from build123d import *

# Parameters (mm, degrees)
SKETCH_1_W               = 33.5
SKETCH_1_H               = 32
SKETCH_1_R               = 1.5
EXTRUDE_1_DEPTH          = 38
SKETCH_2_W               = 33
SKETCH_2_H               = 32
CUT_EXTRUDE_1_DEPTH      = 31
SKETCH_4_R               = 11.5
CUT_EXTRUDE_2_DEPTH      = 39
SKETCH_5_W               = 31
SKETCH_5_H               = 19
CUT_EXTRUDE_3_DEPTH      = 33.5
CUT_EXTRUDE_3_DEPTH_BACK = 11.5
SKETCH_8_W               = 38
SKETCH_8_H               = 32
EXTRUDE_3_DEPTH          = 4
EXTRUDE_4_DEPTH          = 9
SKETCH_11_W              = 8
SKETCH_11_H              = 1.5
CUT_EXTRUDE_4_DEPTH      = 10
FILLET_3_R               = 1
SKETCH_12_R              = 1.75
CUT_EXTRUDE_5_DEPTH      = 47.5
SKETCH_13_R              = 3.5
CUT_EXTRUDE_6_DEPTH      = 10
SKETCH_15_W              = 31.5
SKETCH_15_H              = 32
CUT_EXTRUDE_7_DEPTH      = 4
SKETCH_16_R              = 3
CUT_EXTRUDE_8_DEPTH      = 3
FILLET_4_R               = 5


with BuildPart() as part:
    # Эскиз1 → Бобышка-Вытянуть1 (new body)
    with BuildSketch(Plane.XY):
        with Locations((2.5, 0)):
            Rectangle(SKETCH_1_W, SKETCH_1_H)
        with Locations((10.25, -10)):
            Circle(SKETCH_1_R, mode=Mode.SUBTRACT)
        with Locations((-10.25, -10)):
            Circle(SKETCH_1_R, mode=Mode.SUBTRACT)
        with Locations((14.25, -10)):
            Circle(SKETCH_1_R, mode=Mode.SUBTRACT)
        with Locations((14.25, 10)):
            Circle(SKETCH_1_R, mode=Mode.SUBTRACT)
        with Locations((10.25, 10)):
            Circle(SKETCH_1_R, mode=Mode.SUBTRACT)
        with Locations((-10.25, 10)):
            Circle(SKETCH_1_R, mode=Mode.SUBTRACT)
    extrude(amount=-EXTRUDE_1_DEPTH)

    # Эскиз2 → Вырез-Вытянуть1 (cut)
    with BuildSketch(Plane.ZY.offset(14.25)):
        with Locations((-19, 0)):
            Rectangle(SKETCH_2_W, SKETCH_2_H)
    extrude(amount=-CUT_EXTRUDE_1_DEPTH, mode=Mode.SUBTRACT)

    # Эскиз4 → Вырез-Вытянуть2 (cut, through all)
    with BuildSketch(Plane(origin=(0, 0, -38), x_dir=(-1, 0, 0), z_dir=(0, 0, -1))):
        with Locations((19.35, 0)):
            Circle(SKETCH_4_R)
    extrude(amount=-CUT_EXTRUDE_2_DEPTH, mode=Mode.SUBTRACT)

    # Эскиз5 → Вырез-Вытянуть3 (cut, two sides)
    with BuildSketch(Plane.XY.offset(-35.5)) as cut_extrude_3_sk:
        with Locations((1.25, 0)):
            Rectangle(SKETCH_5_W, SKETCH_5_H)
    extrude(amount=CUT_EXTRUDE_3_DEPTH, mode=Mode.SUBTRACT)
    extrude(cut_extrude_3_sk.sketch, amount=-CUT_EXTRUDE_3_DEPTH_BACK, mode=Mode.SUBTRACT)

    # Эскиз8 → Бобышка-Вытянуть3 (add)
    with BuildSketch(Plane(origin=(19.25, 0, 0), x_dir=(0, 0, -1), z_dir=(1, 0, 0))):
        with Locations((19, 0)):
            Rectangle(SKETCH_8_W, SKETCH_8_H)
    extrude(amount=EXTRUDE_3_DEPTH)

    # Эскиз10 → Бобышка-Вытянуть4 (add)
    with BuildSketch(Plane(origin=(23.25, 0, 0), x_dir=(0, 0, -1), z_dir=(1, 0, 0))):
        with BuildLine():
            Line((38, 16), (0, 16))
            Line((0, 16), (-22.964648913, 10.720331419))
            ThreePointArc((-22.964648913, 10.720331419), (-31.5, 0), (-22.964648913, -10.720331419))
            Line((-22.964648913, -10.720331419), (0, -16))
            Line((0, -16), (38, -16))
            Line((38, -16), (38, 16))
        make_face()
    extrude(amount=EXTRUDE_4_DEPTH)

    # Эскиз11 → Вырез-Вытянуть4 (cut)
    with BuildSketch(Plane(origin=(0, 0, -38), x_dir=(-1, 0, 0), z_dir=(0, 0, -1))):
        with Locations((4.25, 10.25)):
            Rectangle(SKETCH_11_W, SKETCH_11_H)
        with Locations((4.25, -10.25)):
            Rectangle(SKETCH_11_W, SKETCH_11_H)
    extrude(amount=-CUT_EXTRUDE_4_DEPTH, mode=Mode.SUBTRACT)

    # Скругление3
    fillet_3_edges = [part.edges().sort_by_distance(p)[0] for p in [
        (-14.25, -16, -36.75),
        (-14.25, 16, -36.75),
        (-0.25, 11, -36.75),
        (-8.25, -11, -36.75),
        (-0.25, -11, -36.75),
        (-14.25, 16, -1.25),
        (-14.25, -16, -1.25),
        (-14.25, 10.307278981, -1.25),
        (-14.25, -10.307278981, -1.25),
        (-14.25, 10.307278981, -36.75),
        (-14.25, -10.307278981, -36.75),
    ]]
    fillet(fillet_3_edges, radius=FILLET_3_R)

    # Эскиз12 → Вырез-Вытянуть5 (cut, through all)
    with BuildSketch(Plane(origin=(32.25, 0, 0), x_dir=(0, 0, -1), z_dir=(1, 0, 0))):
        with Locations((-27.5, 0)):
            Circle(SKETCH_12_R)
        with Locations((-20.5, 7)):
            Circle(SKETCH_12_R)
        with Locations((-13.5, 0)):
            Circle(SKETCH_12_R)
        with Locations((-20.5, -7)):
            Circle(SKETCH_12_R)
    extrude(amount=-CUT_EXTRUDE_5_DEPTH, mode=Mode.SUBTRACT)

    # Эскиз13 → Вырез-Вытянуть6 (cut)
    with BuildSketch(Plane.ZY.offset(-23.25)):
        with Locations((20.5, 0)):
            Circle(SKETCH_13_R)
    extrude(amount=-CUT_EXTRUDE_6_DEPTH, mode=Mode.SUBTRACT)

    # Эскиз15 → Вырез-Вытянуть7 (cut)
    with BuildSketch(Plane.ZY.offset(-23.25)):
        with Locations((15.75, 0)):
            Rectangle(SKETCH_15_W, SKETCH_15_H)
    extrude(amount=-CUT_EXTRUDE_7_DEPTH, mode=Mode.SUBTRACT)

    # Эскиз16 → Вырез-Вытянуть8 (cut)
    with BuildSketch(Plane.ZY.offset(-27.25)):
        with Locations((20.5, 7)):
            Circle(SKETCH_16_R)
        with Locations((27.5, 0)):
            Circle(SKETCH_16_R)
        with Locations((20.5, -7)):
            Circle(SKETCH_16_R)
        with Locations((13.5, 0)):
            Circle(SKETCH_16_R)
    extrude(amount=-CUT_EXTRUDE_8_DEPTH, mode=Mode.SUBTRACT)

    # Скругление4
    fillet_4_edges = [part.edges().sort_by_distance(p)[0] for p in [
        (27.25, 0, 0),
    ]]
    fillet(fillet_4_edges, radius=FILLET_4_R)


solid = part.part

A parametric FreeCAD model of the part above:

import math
import FreeCAD as App
import Part
import Sketcher
from FreeCAD import Vector
Q = App.Units.Quantity


def edges_at(feature, points):
    """Names of the edges that pass closest to the given points."""
    edges = feature.Shape.Edges
    near = lambda p: min(range(len(edges)), key=lambda i: edges[i].distToShape(Part.Vertex(*p))[0])
    return sorted({f"Edge{near(p) + 1}" for p in points})

doc = App.newDocument("Part")
body = doc.addObject("PartDesign::Body", "Body")

# Sketch on XY plane
sketch1 = doc.addObject("Sketcher::SketchObject", "Sketch")
body.addObject(sketch1)
sketch1.AttachmentSupport = (doc.XY_Plane, [""])
sketch1.MapMode = "FlatFace"
sketch1.addGeometry([
    Part.LineSegment(Vector(-14.2, 16, 0), Vector(-14.2, -16, 0)),  # 0
    Part.LineSegment(Vector(-14.2, -16, 0), Vector(19.2, -16, 0)),  # 1
    Part.LineSegment(Vector(19.2, -16, 0), Vector(19.2, 16, 0)),  # 2
    Part.LineSegment(Vector(19.2, 16, 0), Vector(-14.2, 16, 0)),  # 3
    Part.Circle(Vector(-10.2, -10, 0), Vector(0, 0, 1), 1.5),  # 4
    Part.Circle(Vector(10.2, -10, 0), Vector(0, 0, 1), 1.5),  # 5
    Part.Circle(Vector(14.2, -10, 0), Vector(0, 0, 1), 1.5),  # 6
    Part.Circle(Vector(-10.2, 10, 0), Vector(0, 0, 1), 1.5),  # 7
    Part.Circle(Vector(10.2, 10, 0), Vector(0, 0, 1), 1.5),  # 8
    Part.Circle(Vector(14.2, 10, 0), Vector(0, 0, 1), 1.5),  # 9
], False)
sketch1.addConstraint([
    Sketcher.Constraint("Coincident", 0, 2, 1, 1),
    Sketcher.Constraint("Coincident", 1, 2, 2, 1),
    Sketcher.Constraint("Coincident", 2, 2, 3, 1),
    Sketcher.Constraint("Coincident", 3, 2, 0, 1),
    Sketcher.Constraint("Vertical", 0),
    Sketcher.Constraint("Horizontal", 1),
    Sketcher.Constraint("Vertical", 2),
    Sketcher.Constraint("Horizontal", 3),
    Sketcher.Constraint("Equal", 4, 5),
    Sketcher.Constraint("Equal", 5, 6),
    Sketcher.Constraint("Equal", 6, 7),
    Sketcher.Constraint("Equal", 7, 8),
    Sketcher.Constraint("Equal", 8, 9),
    Sketcher.Constraint("Symmetric", 5, 3, 7, 3, -1, 1),
    Sketcher.Constraint("Symmetric", 4, 3, 8, 3, -1, 1),
    Sketcher.Constraint("Symmetric", 4, 3, 5, 3, -2),
    Sketcher.Constraint("Symmetric", 6, 3, 9, 3, -1),
    Sketcher.Constraint("Horizontal", 5, 3, 6, 3),
    Sketcher.Constraint("Diameter", 4, Q("3 mm")),
    Sketcher.Constraint("DistanceY", 0, 2, 0, 1, Q("32 mm")),
    Sketcher.Constraint("DistanceX", 1, 1, 1, 2, Q("33.5 mm")),
    Sketcher.Constraint("DistanceY", 4, 3, -1, 1, Q("10 mm")),
    Sketcher.Constraint("DistanceY", 0, 2, -1, 1, Q("16 mm")),
    Sketcher.Constraint("DistanceX", 5, 3, 6, 3, Q("4 mm")),
    Sketcher.Constraint("DistanceX", 0, 2, 4, 3, Q("4 mm")),
    Sketcher.Constraint("DistanceX", 6, 3, 1, 2, Q("5 mm")),
])
pad1 = doc.addObject("PartDesign::Pad", "Pad")
body.addObject(pad1)
pad1.Profile = sketch1
pad1.Length = 38
pad1.Reversed = True

# Sketch on YZ plane
sketch2 = doc.addObject("Sketcher::SketchObject", "Sketch001")
body.addObject(sketch2)
sketch2.AttachmentSupport = (doc.YZ_Plane, [""])
sketch2.MapMode = "FlatFace"
sketch2.AttachmentOffset = App.Placement(Vector(0, 0, -14.25), App.Rotation())
sketch2.addGeometry([
    Part.LineSegment(Vector(16, -36, 0), Vector(-16, -36, 0)),
    Part.LineSegment(Vector(-16, -36, 0), Vector(-16, -2, 0)),
    Part.LineSegment(Vector(-16, -2, 0), Vector(16, -2, 0)),
    Part.LineSegment(Vector(16, -2, 0), Vector(16, -36, 0)),
], False)
sketch2.addConstraint([
    Sketcher.Constraint("Coincident", 0, 2, 1, 1),
    Sketcher.Constraint("Coincident", 1, 2, 2, 1),
    Sketcher.Constraint("Coincident", 2, 2, 3, 1),
    Sketcher.Constraint("Coincident", 3, 2, 0, 1),
    Sketcher.Constraint("Horizontal", 0),
    Sketcher.Constraint("Vertical", 1),
    Sketcher.Constraint("Horizontal", 2),
    Sketcher.Constraint("Vertical", 3),
    Sketcher.Constraint("DistanceX", 0, 2, 0, 1, Q("32 mm")),
    Sketcher.Constraint("DistanceY", 1, 1, 1, 2, Q("33 mm")),
    Sketcher.Constraint("DistanceX", 0, 2, -1, 1, Q("16 mm")),
    Sketcher.Constraint("DistanceY", 0, 2, -1, 1, Q("35.5 mm")),
])
pocket1 = doc.addObject("PartDesign::Pocket", "Pocket")
body.addObject(pocket1)
pocket1.Profile = sketch2
pocket1.Length = 31
pocket1.Reversed = True

# Sketch on XY plane
sketch3 = doc.addObject("Sketcher::SketchObject", "Sketch002")
body.addObject(sketch3)
sketch3.AttachmentSupport = (doc.XY_Plane, [""])
sketch3.MapMode = "FlatFace"
sketch3.AttachmentOffset = App.Placement(Vector(0, 0, -38), App.Rotation())
sketch3.addGeometry(Part.Circle(Vector(-19, 0, 0), Vector(0, 0, 1), 12), False)
sketch3.addConstraint([
    Sketcher.Constraint("PointOnObject", 0, 3, -1),
    Sketcher.Constraint("Diameter", 0, Q("23 mm")),
    Sketcher.Constraint("DistanceX", 0, 3, -1, 1, Q("19.35 mm")),
])
pocket2 = doc.addObject("PartDesign::Pocket", "Pocket001")
body.addObject(pocket2)
pocket2.Profile = sketch3
pocket2.Type = "ThroughAll"
pocket2.Reversed = True

# Sketch on XY plane
sketch4 = doc.addObject("Sketcher::SketchObject", "Sketch003")
body.addObject(sketch4)
sketch4.AttachmentSupport = (doc.XY_Plane, [""])
sketch4.MapMode = "FlatFace"
sketch4.AttachmentOffset = App.Placement(Vector(0, 0, -35.5), App.Rotation())
sketch4.addGeometry([
    Part.LineSegment(Vector(-14, 10, 0), Vector(-14, -10, 0)),
    Part.LineSegment(Vector(-14, -10, 0), Vector(17, -10, 0)),
    Part.LineSegment(Vector(17, -10, 0), Vector(17, 10, 0)),
    Part.LineSegment(Vector(17, 10, 0), Vector(-14, 10, 0)),
], False)
sketch4.addConstraint([
    Sketcher.Constraint("Coincident", 0, 2, 1, 1),
    Sketcher.Constraint("Coincident", 1, 2, 2, 1),
    Sketcher.Constraint("Coincident", 2, 2, 3, 1),
    Sketcher.Constraint("Coincident", 3, 2, 0, 1),
    Sketcher.Constraint("Vertical", 0),
    Sketcher.Constraint("Horizontal", 1),
    Sketcher.Constraint("Vertical", 2),
    Sketcher.Constraint("Horizontal", 3),
    Sketcher.Constraint("DistanceX", 1, 1, 1, 2, Q("31 mm")),
    Sketcher.Constraint("DistanceY", 0, 2, 0, 1, Q("19 mm")),
    Sketcher.Constraint("DistanceY", 0, 2, -1, 1, Q("9.5 mm")),
    Sketcher.Constraint("DistanceX", 0, 2, -1, 1, Q("14.25 mm")),
])
pocket3 = doc.addObject("PartDesign::Pocket", "Pocket002")
body.addObject(pocket3)
pocket3.Profile = sketch4
pocket3.Type = "TwoLengths"
pocket3.Length = 33.5
pocket3.Length2 = 11.5
pocket3.Reversed = True

# Sketch on YZ plane
sketch5 = doc.addObject("Sketcher::SketchObject", "Sketch004")
body.addObject(sketch5)
sketch5.AttachmentSupport = (doc.YZ_Plane, [""])
sketch5.MapMode = "FlatFace"
sketch5.AttachmentOffset = App.Placement(Vector(0, 0, 19.25), App.Rotation())
sketch5.addGeometry([
    Part.LineSegment(Vector(16, 0, 0), Vector(-16, 0, 0)),
    Part.LineSegment(Vector(-16, 0, 0), Vector(-16, -38, 0)),
    Part.LineSegment(Vector(-16, -38, 0), Vector(16, -38, 0)),
    Part.LineSegment(Vector(16, -38, 0), Vector(16, 0, 0)),
], False)
sketch5.addConstraint([
    Sketcher.Constraint("Coincident", 0, 2, 1, 1),
    Sketcher.Constraint("Coincident", 1, 2, 2, 1),
    Sketcher.Constraint("Coincident", 2, 2, 3, 1),
    Sketcher.Constraint("Coincident", 3, 2, 0, 1),
    Sketcher.Constraint("Horizontal", 0),
    Sketcher.Constraint("Vertical", 1),
    Sketcher.Constraint("Horizontal", 2),
    Sketcher.Constraint("Vertical", 3),
    Sketcher.Constraint("Symmetric", 0, 2, 3, 2, -1, 1),
    Sketcher.Constraint("DistanceX", 0, 2, 0, 1, Q("32 mm")),
    Sketcher.Constraint("DistanceY", 1, 2, 1, 1, Q("38 mm")),
])
pad2 = doc.addObject("PartDesign::Pad", "Pad001")
body.addObject(pad2)
pad2.Profile = sketch5
pad2.Length = 4

# Sketch on YZ plane
sketch6 = doc.addObject("Sketcher::SketchObject", "Sketch005")
body.addObject(sketch6)
sketch6.AttachmentSupport = (doc.YZ_Plane, [""])
sketch6.MapMode = "FlatFace"
sketch6.AttachmentOffset = App.Placement(Vector(0, 0, 23.25), App.Rotation())
sketch6.addGeometry([
    Part.LineSegment(Vector(16, -38, 0), Vector(16, 0, 0)),  # 0
    Part.LineSegment(Vector(16, 0, 0), Vector(11, 23, 0)),  # 1
    Part.ArcOfCircle(Part.Circle(Vector(0, 20, 0), Vector(0, 0, 1), 11), math.radians(13), math.radians(167)),  # 2
    Part.LineSegment(Vector(-11, 23, 0), Vector(-16, 0, 0)),  # 3
    Part.LineSegment(Vector(-16, 0, 0), Vector(-16, -38, 0)),  # 4
    Part.LineSegment(Vector(-16, -38, 0), Vector(16, -38, 0)),  # 5
], False)
sketch6.addConstraint([
    Sketcher.Constraint("Coincident", 0, 2, 1, 1),
    Sketcher.Constraint("Tangent", 1, 2, 2, 1),
    Sketcher.Constraint("Tangent", 2, 2, 3, 1),
    Sketcher.Constraint("Coincident", 3, 2, 4, 1),
    Sketcher.Constraint("Coincident", 4, 2, 5, 1),
    Sketcher.Constraint("Coincident", 5, 2, 0, 1),
    Sketcher.Constraint("Vertical", 0),
    Sketcher.Constraint("Vertical", 4),
    Sketcher.Constraint("Horizontal", 5),
    Sketcher.Constraint("Symmetric", 0, 2, 3, 2, -1, 1),
    Sketcher.Constraint("Symmetric", 1, 2, 2, 2, -2),
    Sketcher.Constraint("Radius", 2, Q("11 mm")),
    Sketcher.Constraint("DistanceX", 5, 1, 5, 2, Q("32 mm")),
    Sketcher.Constraint("DistanceY", 0, 1, 0, 2, Q("38 mm")),
    Sketcher.Constraint("DistanceY", -1, 1, 2, 3, Q("20.5 mm")),
])
pad3 = doc.addObject("PartDesign::Pad", "Pad002")
body.addObject(pad3)
pad3.Profile = sketch6
pad3.Length = 9

# Sketch on XY plane
sketch7 = doc.addObject("Sketcher::SketchObject", "Sketch006")
body.addObject(sketch7)
sketch7.AttachmentSupport = (doc.XY_Plane, [""])
sketch7.MapMode = "FlatFace"
sketch7.AttachmentOffset = App.Placement(Vector(0, 0, -38), App.Rotation())
sketch7.addGeometry([
    Part.LineSegment(Vector(-0.2, 11, 0), Vector(-0.2, 9.5, 0)),  # 0
    Part.LineSegment(Vector(-0.2, 9.5, 0), Vector(-8.2, 9.5, 0)),  # 1
    Part.LineSegment(Vector(-8.2, 9.5, 0), Vector(-8.2, 11, 0)),  # 2
    Part.LineSegment(Vector(-8.2, 11, 0), Vector(-0.2, 11, 0)),  # 3
    Part.LineSegment(Vector(-0.2, -9.5, 0), Vector(-0.2, -11, 0)),  # 4
    Part.LineSegment(Vector(-0.2, -11, 0), Vector(-8.2, -11, 0)),  # 5
    Part.LineSegment(Vector(-8.2, -11, 0), Vector(-8.2, -9.5, 0)),  # 6
    Part.LineSegment(Vector(-8.2, -9.5, 0), Vector(-0.2, -9.5, 0)),  # 7
], False)
sketch7.addConstraint([
    Sketcher.Constraint("Coincident", 0, 2, 1, 1),
    Sketcher.Constraint("Coincident", 1, 2, 2, 1),
    Sketcher.Constraint("Coincident", 2, 2, 3, 1),
    Sketcher.Constraint("Coincident", 3, 2, 0, 1),
    Sketcher.Constraint("Coincident", 4, 2, 5, 1),
    Sketcher.Constraint("Coincident", 5, 2, 6, 1),
    Sketcher.Constraint("Coincident", 6, 2, 7, 1),
    Sketcher.Constraint("Coincident", 7, 2, 4, 1),
    Sketcher.Constraint("Vertical", 0),
    Sketcher.Constraint("Horizontal", 1),
    Sketcher.Constraint("Vertical", 2),
    Sketcher.Constraint("Horizontal", 3),
    Sketcher.Constraint("Vertical", 4),
    Sketcher.Constraint("Horizontal", 5),
    Sketcher.Constraint("Vertical", 6),
    Sketcher.Constraint("Horizontal", 7),
    Sketcher.Constraint("Symmetric", 3, 2, 4, 2, -1),
    Sketcher.Constraint("Symmetric", 1, 2, 6, 2, -1),
    Sketcher.Constraint("DistanceX", 1, 2, 1, 1, Q("8 mm")),
    Sketcher.Constraint("DistanceY", 0, 2, 0, 1, Q("1.5 mm")),
    Sketcher.Constraint("DistanceY", -1, 1, 2, 2, Q("11 mm")),
    Sketcher.Constraint("DistanceX", 0, 2, -1, 1, Q("0.25 mm")),
])
pocket4 = doc.addObject("PartDesign::Pocket", "Pocket003")
body.addObject(pocket4)
pocket4.Profile = sketch7
pocket4.Length = 10
pocket4.Reversed = True
doc.recompute()

fillet = doc.addObject("PartDesign::Fillet", "Fillet")
body.addObject(fillet)
fillet.Base = (pocket4, edges_at(pocket4, [
    (-14.25, -16, -36.75),
    (-14.25, 16, -36.75),
    (-0.25, 11, -36.75),
    (-8.25, -11, -36.75),
    (-0.25, -11, -36.75),
    (-14.25, 16, -1.25),
    (-14.25, -16, -1.25),
    (-14.25, 10.307, -1.25),
    (-14.25, -10.307, -1.25),
    (-14.25, 10.307, -36.75),
    (-14.25, -10.307, -36.75),
]))
fillet.Radius = 1

# Sketch on YZ plane
sketch8 = doc.addObject("Sketcher::SketchObject", "Sketch007")
body.addObject(sketch8)
sketch8.AttachmentSupport = (doc.YZ_Plane, [""])
sketch8.MapMode = "FlatFace"
sketch8.AttachmentOffset = App.Placement(Vector(0, 0, 32.25), App.Rotation())
sketch8.addGeometry([
    Part.Circle(Vector(0, 27.5, 0), Vector(0, 0, 1), 1.8),
    Part.Circle(Vector(7, 20.5, 0), Vector(0, 0, 1), 1.8),
    Part.Circle(Vector(0, 13.5, 0), Vector(0, 0, 1), 1.8),
    Part.Circle(Vector(-7, 20.5, 0), Vector(0, 0, 1), 1.8),
], False)
sketch8.addConstraint([
    Sketcher.Constraint("Equal", 0, 1),
    Sketcher.Constraint("Equal", 1, 2),
    Sketcher.Constraint("Equal", 2, 3),
    Sketcher.Constraint("Symmetric", 1, 3, 3, 3, -2),
    Sketcher.Constraint("PointOnObject", 0, 3, -2),
    Sketcher.Constraint("PointOnObject", 2, 3, -2),
    Sketcher.Constraint("Diameter", 0, Q("3.5 mm")),
    Sketcher.Constraint("DistanceX", -1, 1, 1, 3, Q("7 mm")),
    Sketcher.Constraint("DistanceY", 1, 3, 0, 3, Q("7 mm")),
    Sketcher.Constraint("DistanceY", 2, 3, 1, 3, Q("7 mm")),
    Sketcher.Constraint("DistanceY", -1, 1, 0, 3, Q("27.5 mm")),
])
pocket5 = doc.addObject("PartDesign::Pocket", "Pocket004")
body.addObject(pocket5)
pocket5.Profile = sketch8
pocket5.Type = "ThroughAll"

# Sketch on YZ plane
sketch9 = doc.addObject("Sketcher::SketchObject", "Sketch008")
body.addObject(sketch9)
sketch9.AttachmentSupport = (doc.YZ_Plane, [""])
sketch9.MapMode = "FlatFace"
sketch9.AttachmentOffset = App.Placement(Vector(0, 0, 23.25), App.Rotation())
sketch9.addGeometry(Part.Circle(Vector(0, 20.5, 0), Vector(0, 0, 1), 3.5), False)
sketch9.addConstraint([
    Sketcher.Constraint("PointOnObject", 0, 3, -2),
    Sketcher.Constraint("Diameter", 0, Q("7 mm")),
    Sketcher.Constraint("DistanceY", -1, 1, 0, 3, Q("20.5 mm")),
])
pocket6 = doc.addObject("PartDesign::Pocket", "Pocket005")
body.addObject(pocket6)
pocket6.Profile = sketch9
pocket6.Length = 10
pocket6.Reversed = True

# Sketch on YZ plane
sketch10 = doc.addObject("Sketcher::SketchObject", "Sketch009")
body.addObject(sketch10)
sketch10.AttachmentSupport = (doc.YZ_Plane, [""])
sketch10.MapMode = "FlatFace"
sketch10.AttachmentOffset = App.Placement(Vector(0, 0, 23.25), App.Rotation())
sketch10.addGeometry([
    Part.LineSegment(Vector(16, 0, 0), Vector(-16, 0, 0)),
    Part.LineSegment(Vector(-16, 0, 0), Vector(-16, 32, 0)),
    Part.LineSegment(Vector(-16, 32, 0), Vector(16, 32, 0)),
    Part.LineSegment(Vector(16, 32, 0), Vector(16, 0, 0)),
], False)
sketch10.addConstraint([
    Sketcher.Constraint("Coincident", 0, 2, 1, 1),
    Sketcher.Constraint("Coincident", 1, 2, 2, 1),
    Sketcher.Constraint("Coincident", 2, 2, 3, 1),
    Sketcher.Constraint("Coincident", 3, 2, 0, 1),
    Sketcher.Constraint("Horizontal", 0),
    Sketcher.Constraint("Vertical", 1),
    Sketcher.Constraint("Horizontal", 2),
    Sketcher.Constraint("Vertical", 3),
    Sketcher.Constraint("Symmetric", 0, 2, 3, 2, -1, 1),
    Sketcher.Constraint("DistanceX", 0, 2, 0, 1, Q("32 mm")),
    Sketcher.Constraint("DistanceY", 1, 1, 1, 2, Q("31.5 mm")),
])
pocket7 = doc.addObject("PartDesign::Pocket", "Pocket006")
body.addObject(pocket7)
pocket7.Profile = sketch10
pocket7.Length = 4
pocket7.Reversed = True

# Sketch on YZ plane
sketch11 = doc.addObject("Sketcher::SketchObject", "Sketch010")
body.addObject(sketch11)
sketch11.AttachmentSupport = (doc.YZ_Plane, [""])
sketch11.MapMode = "FlatFace"
sketch11.AttachmentOffset = App.Placement(Vector(0, 0, 27.25), App.Rotation())
sketch11.addGeometry([
    Part.Circle(Vector(7, 20.5, 0), Vector(0, 0, 1), 3),
    Part.Circle(Vector(0, 27.5, 0), Vector(0, 0, 1), 3),
    Part.Circle(Vector(-7, 20.5, 0), Vector(0, 0, 1), 3),
    Part.Circle(Vector(0, 13.5, 0), Vector(0, 0, 1), 3),
], False)
sketch11.addConstraint([
    Sketcher.Constraint("Equal", 0, 1),
    Sketcher.Constraint("Equal", 1, 2),
    Sketcher.Constraint("Equal", 2, 3),
    Sketcher.Constraint("Symmetric", 0, 3, 2, 3, -2),
    Sketcher.Constraint("PointOnObject", 1, 3, -2),
    Sketcher.Constraint("PointOnObject", 3, 3, -2),
    Sketcher.Constraint("Diameter", 0, Q("6 mm")),
    Sketcher.Constraint("DistanceX", -1, 1, 0, 3, Q("7 mm")),
    Sketcher.Constraint("DistanceY", 0, 3, 1, 3, Q("7 mm")),
    Sketcher.Constraint("DistanceY", 3, 3, 0, 3, Q("7 mm")),
    Sketcher.Constraint("DistanceY", -1, 1, 0, 3, Q("20.5 mm")),
])
pocket8 = doc.addObject("PartDesign::Pocket", "Pocket007")
body.addObject(pocket8)
pocket8.Profile = sketch11
pocket8.Length = 3
pocket8.Reversed = True
doc.recompute()

fillet2 = doc.addObject("PartDesign::Fillet", "Fillet001")
body.addObject(fillet2)
fillet2.Base = (pocket8, edges_at(pocket8, [(27.25, 0, 0)]))
fillet2.Radius = 5

doc.recompute()
